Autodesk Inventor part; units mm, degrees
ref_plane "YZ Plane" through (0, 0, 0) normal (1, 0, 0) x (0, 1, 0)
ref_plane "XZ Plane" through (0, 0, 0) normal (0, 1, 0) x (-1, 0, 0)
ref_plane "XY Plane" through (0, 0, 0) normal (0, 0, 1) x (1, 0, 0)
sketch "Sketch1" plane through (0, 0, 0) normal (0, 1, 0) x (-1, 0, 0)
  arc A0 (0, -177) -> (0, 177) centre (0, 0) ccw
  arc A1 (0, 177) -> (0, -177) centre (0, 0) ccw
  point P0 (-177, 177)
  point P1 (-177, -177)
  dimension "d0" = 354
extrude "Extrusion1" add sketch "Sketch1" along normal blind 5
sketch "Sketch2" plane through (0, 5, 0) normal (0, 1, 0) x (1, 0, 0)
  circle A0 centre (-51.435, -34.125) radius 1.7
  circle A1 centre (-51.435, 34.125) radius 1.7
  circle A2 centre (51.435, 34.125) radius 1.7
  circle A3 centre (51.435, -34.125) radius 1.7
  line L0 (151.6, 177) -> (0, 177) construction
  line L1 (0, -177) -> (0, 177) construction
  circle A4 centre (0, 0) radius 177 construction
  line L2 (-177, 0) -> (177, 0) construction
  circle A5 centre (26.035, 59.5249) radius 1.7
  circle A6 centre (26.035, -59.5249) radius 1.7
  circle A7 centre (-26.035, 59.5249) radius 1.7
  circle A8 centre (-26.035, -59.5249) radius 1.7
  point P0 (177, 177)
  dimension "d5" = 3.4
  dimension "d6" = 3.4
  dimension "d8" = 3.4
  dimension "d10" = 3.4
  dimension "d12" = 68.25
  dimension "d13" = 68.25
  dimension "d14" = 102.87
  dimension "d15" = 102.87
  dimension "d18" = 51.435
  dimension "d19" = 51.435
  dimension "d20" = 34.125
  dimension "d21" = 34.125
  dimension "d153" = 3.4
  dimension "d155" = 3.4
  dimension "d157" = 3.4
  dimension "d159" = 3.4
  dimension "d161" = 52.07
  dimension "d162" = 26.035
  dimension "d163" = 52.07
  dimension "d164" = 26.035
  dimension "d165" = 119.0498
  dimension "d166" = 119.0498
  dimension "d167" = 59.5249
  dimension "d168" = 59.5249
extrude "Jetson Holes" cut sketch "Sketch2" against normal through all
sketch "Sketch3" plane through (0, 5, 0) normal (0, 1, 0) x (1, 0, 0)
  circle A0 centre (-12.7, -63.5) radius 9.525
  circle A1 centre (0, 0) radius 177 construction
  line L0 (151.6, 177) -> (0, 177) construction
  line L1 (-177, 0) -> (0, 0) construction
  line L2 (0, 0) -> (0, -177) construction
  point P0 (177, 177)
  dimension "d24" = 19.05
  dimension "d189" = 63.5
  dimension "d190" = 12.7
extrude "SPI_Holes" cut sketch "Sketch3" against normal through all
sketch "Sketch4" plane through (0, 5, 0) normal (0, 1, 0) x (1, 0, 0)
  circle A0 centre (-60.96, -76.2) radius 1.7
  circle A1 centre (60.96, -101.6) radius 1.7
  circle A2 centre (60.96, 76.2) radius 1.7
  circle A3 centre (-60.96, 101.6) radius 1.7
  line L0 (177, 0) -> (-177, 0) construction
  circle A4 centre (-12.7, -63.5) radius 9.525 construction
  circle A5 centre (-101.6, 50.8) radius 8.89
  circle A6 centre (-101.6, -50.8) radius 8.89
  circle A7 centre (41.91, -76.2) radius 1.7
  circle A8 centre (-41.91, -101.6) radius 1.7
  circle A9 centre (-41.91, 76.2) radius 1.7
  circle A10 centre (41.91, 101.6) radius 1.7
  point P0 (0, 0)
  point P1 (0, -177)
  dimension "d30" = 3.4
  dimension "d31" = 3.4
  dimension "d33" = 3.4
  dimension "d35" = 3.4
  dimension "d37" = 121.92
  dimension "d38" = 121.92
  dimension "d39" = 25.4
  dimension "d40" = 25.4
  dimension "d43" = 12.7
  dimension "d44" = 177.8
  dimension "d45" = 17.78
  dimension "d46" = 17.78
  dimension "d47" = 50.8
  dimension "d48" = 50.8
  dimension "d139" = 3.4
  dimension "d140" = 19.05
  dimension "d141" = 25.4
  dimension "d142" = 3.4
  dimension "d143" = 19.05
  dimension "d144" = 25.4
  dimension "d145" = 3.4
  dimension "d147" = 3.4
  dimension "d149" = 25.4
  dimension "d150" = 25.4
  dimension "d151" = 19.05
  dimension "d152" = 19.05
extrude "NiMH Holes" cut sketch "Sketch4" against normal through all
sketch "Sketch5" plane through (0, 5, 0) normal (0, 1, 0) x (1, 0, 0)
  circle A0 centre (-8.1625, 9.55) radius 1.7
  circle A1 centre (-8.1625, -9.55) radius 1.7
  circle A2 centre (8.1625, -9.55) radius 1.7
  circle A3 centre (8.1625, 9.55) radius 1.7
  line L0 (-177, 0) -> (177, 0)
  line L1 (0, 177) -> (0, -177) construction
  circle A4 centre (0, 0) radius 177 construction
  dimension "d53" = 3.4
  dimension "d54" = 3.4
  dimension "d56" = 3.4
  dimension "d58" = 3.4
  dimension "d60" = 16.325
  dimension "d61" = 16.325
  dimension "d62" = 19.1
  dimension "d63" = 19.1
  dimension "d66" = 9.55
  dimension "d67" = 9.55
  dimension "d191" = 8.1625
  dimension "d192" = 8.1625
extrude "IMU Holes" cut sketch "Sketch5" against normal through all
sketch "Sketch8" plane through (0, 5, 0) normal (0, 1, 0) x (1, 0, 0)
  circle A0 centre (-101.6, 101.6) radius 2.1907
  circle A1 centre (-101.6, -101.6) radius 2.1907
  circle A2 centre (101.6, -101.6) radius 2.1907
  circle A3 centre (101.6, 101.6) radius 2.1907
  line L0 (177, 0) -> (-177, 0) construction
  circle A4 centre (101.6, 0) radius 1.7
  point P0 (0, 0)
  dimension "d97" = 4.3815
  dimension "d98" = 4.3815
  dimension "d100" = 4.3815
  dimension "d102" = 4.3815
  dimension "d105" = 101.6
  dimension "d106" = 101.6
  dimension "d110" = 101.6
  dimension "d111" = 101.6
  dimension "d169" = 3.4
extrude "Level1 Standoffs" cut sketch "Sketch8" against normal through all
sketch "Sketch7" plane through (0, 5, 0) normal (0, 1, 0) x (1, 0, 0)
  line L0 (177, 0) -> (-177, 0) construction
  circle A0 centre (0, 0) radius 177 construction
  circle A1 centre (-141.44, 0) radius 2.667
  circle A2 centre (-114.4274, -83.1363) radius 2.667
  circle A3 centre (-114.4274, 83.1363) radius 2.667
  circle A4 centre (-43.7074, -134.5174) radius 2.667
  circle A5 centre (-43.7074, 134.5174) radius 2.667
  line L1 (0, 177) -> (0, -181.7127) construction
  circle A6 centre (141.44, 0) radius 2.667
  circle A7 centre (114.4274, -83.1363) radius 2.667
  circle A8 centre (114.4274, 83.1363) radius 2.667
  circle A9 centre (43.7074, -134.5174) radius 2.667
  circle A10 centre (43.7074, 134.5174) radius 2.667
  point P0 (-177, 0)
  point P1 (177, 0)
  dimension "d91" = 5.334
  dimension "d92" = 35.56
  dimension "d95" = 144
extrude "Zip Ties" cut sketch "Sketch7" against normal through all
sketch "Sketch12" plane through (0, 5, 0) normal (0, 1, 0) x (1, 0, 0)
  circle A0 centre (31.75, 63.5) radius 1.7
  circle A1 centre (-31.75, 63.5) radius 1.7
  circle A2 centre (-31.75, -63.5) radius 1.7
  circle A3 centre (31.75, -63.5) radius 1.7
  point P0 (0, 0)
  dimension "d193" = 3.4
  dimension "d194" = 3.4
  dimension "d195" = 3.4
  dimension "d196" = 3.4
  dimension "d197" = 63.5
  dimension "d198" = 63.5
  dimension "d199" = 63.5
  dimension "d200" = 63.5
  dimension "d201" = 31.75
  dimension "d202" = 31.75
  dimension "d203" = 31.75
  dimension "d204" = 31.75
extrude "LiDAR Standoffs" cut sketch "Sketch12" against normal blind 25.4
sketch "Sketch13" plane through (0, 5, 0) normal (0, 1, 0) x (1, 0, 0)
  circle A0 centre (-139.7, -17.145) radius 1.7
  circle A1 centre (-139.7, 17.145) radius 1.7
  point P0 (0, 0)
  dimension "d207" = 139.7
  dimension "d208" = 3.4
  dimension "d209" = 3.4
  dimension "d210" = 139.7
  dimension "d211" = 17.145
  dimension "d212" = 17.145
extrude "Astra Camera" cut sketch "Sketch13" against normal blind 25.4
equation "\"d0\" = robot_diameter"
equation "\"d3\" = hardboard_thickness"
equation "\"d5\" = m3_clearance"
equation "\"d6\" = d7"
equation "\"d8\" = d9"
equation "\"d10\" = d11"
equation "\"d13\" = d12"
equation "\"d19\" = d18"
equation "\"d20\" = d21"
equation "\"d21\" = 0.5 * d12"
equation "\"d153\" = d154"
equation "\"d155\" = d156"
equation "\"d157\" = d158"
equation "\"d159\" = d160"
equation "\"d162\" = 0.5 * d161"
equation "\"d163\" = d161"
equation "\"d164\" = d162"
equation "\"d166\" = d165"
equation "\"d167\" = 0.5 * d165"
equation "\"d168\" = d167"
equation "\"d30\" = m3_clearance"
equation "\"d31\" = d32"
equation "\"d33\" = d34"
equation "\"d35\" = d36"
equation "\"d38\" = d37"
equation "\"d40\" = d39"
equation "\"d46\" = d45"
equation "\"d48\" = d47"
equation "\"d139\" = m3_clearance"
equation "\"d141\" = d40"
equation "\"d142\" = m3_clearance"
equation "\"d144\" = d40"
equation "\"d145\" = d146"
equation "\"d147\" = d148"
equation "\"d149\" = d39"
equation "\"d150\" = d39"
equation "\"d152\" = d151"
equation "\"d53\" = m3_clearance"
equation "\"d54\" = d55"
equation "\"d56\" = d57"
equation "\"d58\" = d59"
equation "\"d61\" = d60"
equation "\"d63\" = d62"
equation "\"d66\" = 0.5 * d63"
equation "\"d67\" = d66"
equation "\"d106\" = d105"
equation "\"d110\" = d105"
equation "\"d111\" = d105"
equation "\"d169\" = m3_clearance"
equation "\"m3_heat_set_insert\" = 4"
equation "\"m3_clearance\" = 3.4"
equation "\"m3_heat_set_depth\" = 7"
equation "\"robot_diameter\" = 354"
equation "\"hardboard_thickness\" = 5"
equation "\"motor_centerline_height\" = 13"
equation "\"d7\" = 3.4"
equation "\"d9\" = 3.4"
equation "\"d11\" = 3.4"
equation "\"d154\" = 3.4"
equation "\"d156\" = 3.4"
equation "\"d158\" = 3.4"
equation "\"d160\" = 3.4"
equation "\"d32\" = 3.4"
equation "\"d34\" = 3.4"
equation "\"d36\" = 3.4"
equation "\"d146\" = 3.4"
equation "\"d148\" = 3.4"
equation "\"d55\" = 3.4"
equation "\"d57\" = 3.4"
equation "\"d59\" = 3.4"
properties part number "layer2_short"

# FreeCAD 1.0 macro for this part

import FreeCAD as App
import Part
import Sketcher
from FreeCAD import Vector
Q = App.Units.Quantity

doc = App.newDocument("Part")
body = doc.addObject("PartDesign::Body", "Body")

# Sketch on XZ plane
sketch1 = doc.addObject("Sketcher::SketchObject", "Sketch")
body.addObject(sketch1)
sketch1.AttachmentSupport = (doc.XZ_Plane, [""])
sketch1.MapMode = "FlatFace"
sketch1.addGeometry(Part.Circle(Vector(0, 0, 0), Vector(0, 0, 1), 177), False)
sketch1.addConstraint([
    Sketcher.Constraint("Coincident", 0, 3, -1, 1),
    Sketcher.Constraint("Diameter", 0, Q("13.937 in")),
])
pad1 = doc.addObject("PartDesign::Pad", "Pad")
body.addObject(pad1)
pad1.Profile = sketch1
pad1.Length = 5
pad1.Reversed = True

# Sketch on XZ plane
sketch2 = doc.addObject("Sketcher::SketchObject", "Sketch001")
body.addObject(sketch2)
sketch2.AttachmentSupport = (doc.XZ_Plane, [""])
sketch2.MapMode = "FlatFace"
sketch2.AttachmentOffset = App.Placement(Vector(0, 0, -5), App.Rotation())
sketch2.addGeometry([
    Part.Circle(Vector(-51.4, 34.1, 0), Vector(0, 0, 1), 1.7),  # 0
    Part.Circle(Vector(-51.4, -34.1, 0), Vector(0, 0, 1), 1.7),  # 1
    Part.Circle(Vector(51.4, -34.1, 0), Vector(0, 0, 1), 1.7),  # 2
    Part.Circle(Vector(51.4, 34.1, 0), Vector(0, 0, 1), 1.7),  # 3
    Part.Circle(Vector(26, -59.5, 0), Vector(0, 0, 1), 1.7),  # 4
    Part.Circle(Vector(26, 59.5, 0), Vector(0, 0, 1), 1.7),  # 5
    Part.Circle(Vector(-26, -59.5, 0), Vector(0, 0, 1), 1.7),  # 6
    Part.Circle(Vector(-26, 59.5, 0), Vector(0, 0, 1), 1.7),  # 7
], False)
sketch2.addConstraint([
    Sketcher.Constraint("Equal", 0, 1),
    Sketcher.Constraint("Equal", 1, 2),
    Sketcher.Constraint("Equal", 2, 3),
    Sketcher.Constraint("Equal", 3, 4),
    Sketcher.Constraint("Equal", 4, 5),
    Sketcher.Constraint("Equal", 5, 6),
    Sketcher.Constraint("Equal", 6, 7),
    Sketcher.Constraint("Symmetric", 0, 3, 2, 3, -1, 1),
    Sketcher.Constraint("Symmetric", 1, 3, 3, 3, -1, 1),
    Sketcher.Constraint("Symmetric", 5, 3, 6, 3, -1, 1),
    Sketcher.Constraint("Symmetric", 4, 3, 7, 3, -1, 1),
    Sketcher.Constraint("Symmetric", 1, 3, 2, 3, -2),
    Sketcher.Constraint("Symmetric", 4, 3, 6, 3, -2),
    Sketcher.Constraint("Diameter", 0, 3.4),
    Sketcher.Constraint("DistanceX", 1, 3, 2, 3, Q("4.05 in")),
    Sketcher.Constraint("DistanceX", 6, 3, 4, 3, Q("2.05 in")),
    Sketcher.Constraint("DistanceY", 1, 3, 0, 3, Q("2.687 in")),
    Sketcher.Constraint("DistanceY", 4, 3, 2, 3, Q("1 in")),
])
pocket1 = doc.addObject("PartDesign::Pocket", "Pocket")
body.addObject(pocket1)
pocket1.Profile = sketch2
pocket1.Type = "ThroughAll"
pocket1.Reversed = True

# Sketch on XZ plane
sketch3 = doc.addObject("Sketcher::SketchObject", "Sketch002")
body.addObject(sketch3)
sketch3.AttachmentSupport = (doc.XZ_Plane, [""])
sketch3.MapMode = "FlatFace"
sketch3.AttachmentOffset = App.Placement(Vector(0, 0, -5), App.Rotation())
sketch3.addGeometry(Part.Circle(Vector(-13, 64, 0), Vector(0, 0, 1), 10), False)
sketch3.addConstraint([
    Sketcher.Constraint("Diameter", 0, Q("0.75 in")),
    Sketcher.Constraint("DistanceX", 0, 3, -1, 1, Q("0.5 in")),
    Sketcher.Constraint("DistanceY", -1, 1, 0, 3, Q("2.5 in")),
])
pocket2 = doc.addObject("PartDesign::Pocket", "Pocket001")
body.addObject(pocket2)
pocket2.Profile = sketch3
pocket2.Type = "ThroughAll"
pocket2.Reversed = True

# Sketch on XZ plane
sketch4 = doc.addObject("Sketcher::SketchObject", "Sketch003")
body.addObject(sketch4)
sketch4.AttachmentSupport = (doc.XZ_Plane, [""])
sketch4.MapMode = "FlatFace"
sketch4.AttachmentOffset = App.Placement(Vector(0, 0, -5), App.Rotation())
sketch4.addGeometry([
    Part.Circle(Vector(-61, 76.2, 0), Vector(0, 0, 1), 1.7),  # 0
    Part.Circle(Vector(61, 101.6, 0), Vector(0, 0, 1), 1.7),  # 1
    Part.Circle(Vector(61, -76.2, 0), Vector(0, 0, 1), 1.7),  # 2
    Part.Circle(Vector(-61, -101.6, 0), Vector(0, 0, 1), 1.7),  # 3
    Part.Circle(Vector(-101.6, -50.8, 0), Vector(0, 0, 1), 8.9),  # 4
    Part.Circle(Vector(-101.6, 50.8, 0), Vector(0, 0, 1), 8.9),  # 5
    Part.Circle(Vector(41.9, 76.2, 0), Vector(0, 0, 1), 1.7),  # 6
    Part.Circle(Vector(-41.9, 101.6, 0), Vector(0, 0, 1), 1.7),  # 7
    Part.Circle(Vector(-41.9, -76.2, 0), Vector(0, 0, 1), 1.7),  # 8
    Part.Circle(Vector(41.9, -101.6, 0), Vector(0, 0, 1), 1.7),  # 9
], False)
sketch4.addConstraint([
    Sketcher.Constraint("Equal", 0, 1),
    Sketcher.Constraint("Equal", 1, 2),
    Sketcher.Constraint("Equal", 2, 3),
    Sketcher.Constraint("Equal", 4, 5),
    Sketcher.Constraint("Equal", 3, 6),
    Sketcher.Constraint("Equal", 6, 7),
    Sketcher.Constraint("Equal", 7, 8),
    Sketcher.Constraint("Equal", 8, 9),
    Sketcher.Constraint("Symmetric", 0, 3, 2, 3, -1, 1),
    Sketcher.Constraint("Symmetric", 1, 3, 3, 3, -1, 1),
    Sketcher.Constraint("Symmetric", 6, 3, 8, 3, -1, 1),
    Sketcher.Constraint("Symmetric", 7, 3, 9, 3, -1, 1),
    Sketcher.Constraint("Symmetric", 4, 3, 5, 3, -1),
    Sketcher.Constraint("Horizontal", 0, 3, 6, 3),
    Sketcher.Constraint("Horizontal", 1, 3, 7, 3),
    Sketcher.Constraint("Vertical", 1, 3, 2, 3),
    Sketcher.Constraint("Vertical", 7, 3, 8, 3),
    Sketcher.Constraint("Diameter", 4, Q("0.7 in")),
    Sketcher.Constraint("DistanceY", 4, 3, -1, 1, Q("2 in")),
    Sketcher.Constraint("DistanceY", 0, 3, 1, 3, Q("1 in")),
    Sketcher.Constraint("DistanceY", 2, 3, 1, 3, Q("7 in")),
    Sketcher.Constraint("DistanceX", 0, 3, 1, 3, Q("4.8 in")),
    Sketcher.Constraint("Diameter", 0, 3.4),
    Sketcher.Constraint("DistanceX", 6, 3, 1, 3, Q("0.75 in")),
    Sketcher.Constraint("DistanceX", 4, 3, -1, 1, Q("4 in")),
])
pocket3 = doc.addObject("PartDesign::Pocket", "Pocket002")
body.addObject(pocket3)
pocket3.Profile = sketch4
pocket3.Type = "ThroughAll"
pocket3.Reversed = True

# Sketch on XZ plane
sketch5 = doc.addObject("Sketcher::SketchObject", "Sketch004")
body.addObject(sketch5)
sketch5.AttachmentSupport = (doc.XZ_Plane, [""])
sketch5.MapMode = "FlatFace"
sketch5.AttachmentOffset = App.Placement(Vector(0, 0, -5), App.Rotation())
sketch5.addGeometry([
    Part.Circle(Vector(-8.2, -9.6, 0), Vector(0, 0, 1), 1.7),
    Part.Circle(Vector(-8.2, 9.6, 0), Vector(0, 0, 1), 1.7),
    Part.Circle(Vector(8.2, 9.6, 0), Vector(0, 0, 1), 1.7),
    Part.Circle(Vector(8.2, -9.6, 0), Vector(0, 0, 1), 1.7),
], False)
sketch5.addConstraint([
    Sketcher.Constraint("Equal", 0, 1),
    Sketcher.Constraint("Equal", 1, 2),
    Sketcher.Constraint("Equal", 2, 3),
    Sketcher.Constraint("Symmetric", 0, 3, 2, 3, -1, 1),
    Sketcher.Constraint("Symmetric", 1, 3, 3, 3, -1, 1),
    Sketcher.Constraint("Symmetric", 1, 3, 2, 3, -2),
    Sketcher.Constraint("Diameter", 0, 3.4),
    Sketcher.Constraint("DistanceX", 0, 3, -1, 1, 8.1625),
    Sketcher.Constraint("DistanceY", 0, 3, -1, 1, 9.55),
])
pocket4 = doc.addObject("PartDesign::Pocket", "Pocket003")
body.addObject(pocket4)
pocket4.Profile = sketch5
pocket4.Type = "ThroughAll"
pocket4.Reversed = True

# Sketch on XZ plane
sketch6 = doc.addObject("Sketcher::SketchObject", "Sketch005")
body.addObject(sketch6)
sketch6.AttachmentSupport = (doc.XZ_Plane, [""])
sketch6.MapMode = "FlatFace"
sketch6.AttachmentOffset = App.Placement(Vector(0, 0, -5), App.Rotation())
sketch6.addGeometry([
    Part.Circle(Vector(-101.6, -101.6, 0), Vector(0, 0, 1), 2.2),  # 0
    Part.Circle(Vector(-101.6, 101.6, 0), Vector(0, 0, 1), 2.2),  # 1
    Part.Circle(Vector(101.6, 101.6, 0), Vector(0, 0, 1), 2.2),  # 2
    Part.Circle(Vector(101.6, -101.6, 0), Vector(0, 0, 1), 2.2),  # 3
    Part.Circle(Vector(101.6, 0, 0), Vector(0, 0, 1), 1.7),  # 4
], False)
sketch6.addConstraint([
    Sketcher.Constraint("Equal", 0, 1),
    Sketcher.Constraint("Equal", 1, 2),
    Sketcher.Constraint("Equal", 2, 3),
    Sketcher.Constraint("Symmetric", 0, 3, 2, 3, -1, 1),
    Sketcher.Constraint("Symmetric", 1, 3, 3, 3, -1, 1),
    Sketcher.Constraint("Symmetric", 1, 3, 2, 3, -2),
    Sketcher.Constraint("PointOnObject", 4, 3, -1),
    Sketcher.Constraint("Vertical", 3, 3, 4, 3),
    Sketcher.Constraint("DistanceX", 0, 3, -1, 1, Q("4 in")),
    Sketcher.Constraint("DistanceY", 0, 3, -1, 1, Q("4 in")),
    Sketcher.Constraint("Diameter", 0, Q("0.1725 in")),
    Sketcher.Constraint("Diameter", 4, 3.4),
])
pocket5 = doc.addObject("PartDesign::Pocket", "Pocket004")
body.addObject(pocket5)
pocket5.Profile = sketch6
pocket5.Type = "ThroughAll"
pocket5.Reversed = True

# Sketch on XZ plane
sketch7 = doc.addObject("Sketcher::SketchObject", "Sketch006")
body.addObject(sketch7)
sketch7.AttachmentSupport = (doc.XZ_Plane, [""])
sketch7.MapMode = "FlatFace"
sketch7.AttachmentOffset = App.Placement(Vector(0, 0, -5), App.Rotation())
sketch7.addGeometry([
    Part.Circle(Vector(-141.4, 0, 0), Vector(0, 0, 1), 2.7),  # 0
    Part.Circle(Vector(-114.4, 83.1, 0), Vector(0, 0, 1), 2.7),  # 1
    Part.Circle(Vector(-114.4, -83.1, 0), Vector(0, 0, 1), 2.7),  # 2
    Part.Circle(Vector(-43.7, 134.5, 0), Vector(0, 0, 1), 2.7),  # 3
    Part.Circle(Vector(-43.7, -134.5, 0), Vector(0, 0, 1), 2.7),  # 4
    Part.Circle(Vector(141.4, 0, 0), Vector(0, 0, 1), 2.7),  # 5
    Part.Circle(Vector(114.4, 83.1, 0), Vector(0, 0, 1), 2.7),  # 6
    Part.Circle(Vector(114.4, -83.1, 0), Vector(0, 0, 1), 2.7),  # 7
    Part.Circle(Vector(43.7, 134.5, 0), Vector(0, 0, 1), 2.7),  # 8
    Part.Circle(Vector(43.7, -134.5, 0), Vector(0, 0, 1), 2.7),  # 9
], False)
sketch7.addConstraint([
    Sketcher.Constraint("Equal", 0, 1),
    Sketcher.Constraint("Equal", 1, 2),
    Sketcher.Constraint("Equal", 2, 3),
    Sketcher.Constraint("Equal", 3, 4),
    Sketcher.Constraint("Equal", 4, 5),
    Sketcher.Constraint("Equal", 5, 6),
    Sketcher.Constraint("Equal", 6, 7),
    Sketcher.Constraint("Equal", 7, 8),
    Sketcher.Constraint("Equal", 8, 9),
    Sketcher.Constraint("Symmetric", 0, 3, 5, 3, -1, 1),
    Sketcher.Constraint("Symmetric", 2, 3, 6, 3, -1, 1),
    Sketcher.Constraint("Symmetric", 1, 3, 7, 3, -1, 1),
    Sketcher.Constraint("Symmetric", 4, 3, 8, 3, -1, 1),
    Sketcher.Constraint("Symmetric", 3, 3, 9, 3, -1, 1),
    Sketcher.Constraint("Symmetric", 1, 3, 6, 3, -2),
    Sketcher.Constraint("Symmetric", 3, 3, 8, 3, -2),
    Sketcher.Constraint("PointOnObject", 0, 3, -1),
    Sketcher.Constraint("Diameter", 0, Q("0.21 in")),
    Sketcher.Constraint("DistanceX", 0, 3, 5, 3, Q("11.137 in")),
    Sketcher.Constraint("DistanceX", 0, 3, 1, 3, Q("1.0635 in")),
    Sketcher.Constraint("DistanceY", -1, 1, 1, 3, 83.1363),
    Sketcher.Constraint("DistanceX", 3, 3, -1, 1, 43.7074),
    Sketcher.Constraint("DistanceY", -1, 1, 3, 3, 134.5174),
])
pocket6 = doc.addObject("PartDesign::Pocket", "Pocket005")
body.addObject(pocket6)
pocket6.Profile = sketch7
pocket6.Type = "ThroughAll"
pocket6.Reversed = True

# Sketch on XZ plane
sketch8 = doc.addObject("Sketcher::SketchObject", "Sketch007")
body.addObject(sketch8)
sketch8.AttachmentSupport = (doc.XZ_Plane, [""])
sketch8.MapMode = "FlatFace"
sketch8.AttachmentOffset = App.Placement(Vector(0, 0, -5), App.Rotation())
sketch8.addGeometry([
    Part.Circle(Vector(31.8, -63.5, 0), Vector(0, 0, 1), 1.7),
    Part.Circle(Vector(-31.8, -63.5, 0), Vector(0, 0, 1), 1.7),
    Part.Circle(Vector(-31.8, 63.5, 0), Vector(0, 0, 1), 1.7),
    Part.Circle(Vector(31.8, 63.5, 0), Vector(0, 0, 1), 1.7),
], False)
sketch8.addConstraint([
    Sketcher.Constraint("Equal", 0, 1),
    Sketcher.Constraint("Equal", 1, 2),
    Sketcher.Constraint("Equal", 2, 3),
    Sketcher.Constraint("Symmetric", 0, 3, 2, 3, -1, 1),
    Sketcher.Constraint("Symmetric", 1, 3, 3, 3, -1, 1),
    Sketcher.Constraint("Symmetric", 0, 3, 1, 3, -2),
    Sketcher.Constraint("DistanceY", 0, 3, -1, 1, Q("2.5 in")),
    Sketcher.Constraint("DistanceX", 1, 3, 0, 3, Q("2.5 in")),
    Sketcher.Constraint("Diameter", 0, 3.4),
])
pocket7 = doc.addObject("PartDesign::Pocket", "Pocket006")
body.addObject(pocket7)
pocket7.Profile = sketch8
pocket7.Length = Q("1 in")
pocket7.Reversed = True

# Sketch on XZ plane
sketch9 = doc.addObject("Sketcher::SketchObject", "Sketch008")
body.addObject(sketch9)
sketch9.AttachmentSupport = (doc.XZ_Plane, [""])
sketch9.MapMode = "FlatFace"
sketch9.AttachmentOffset = App.Placement(Vector(0, 0, -5), App.Rotation())
sketch9.addGeometry([
    Part.Circle(Vector(-139.7, 17.1, 0), Vector(0, 0, 1), 1.7),
    Part.Circle(Vector(-139.7, -17.1, 0), Vector(0, 0, 1), 1.7),
], False)
sketch9.addConstraint([
    Sketcher.Constraint("Equal", 0, 1),
    Sketcher.Constraint("Symmetric", 0, 3, 1, 3, -1),
    Sketcher.Constraint("DistanceX", 0, 3, -1, 1, Q("5.5 in")),
    Sketcher.Constraint("Diameter", 0, 3.4),
    Sketcher.Constraint("DistanceY", -1, 1, 0, 3, Q("0.675 in")),
])
pocket8 = doc.addObject("PartDesign::Pocket", "Pocket007")
body.addObject(pocket8)
pocket8.Profile = sketch9
pocket8.Length = Q("1 in")
pocket8.Reversed = True

doc.recompute()
